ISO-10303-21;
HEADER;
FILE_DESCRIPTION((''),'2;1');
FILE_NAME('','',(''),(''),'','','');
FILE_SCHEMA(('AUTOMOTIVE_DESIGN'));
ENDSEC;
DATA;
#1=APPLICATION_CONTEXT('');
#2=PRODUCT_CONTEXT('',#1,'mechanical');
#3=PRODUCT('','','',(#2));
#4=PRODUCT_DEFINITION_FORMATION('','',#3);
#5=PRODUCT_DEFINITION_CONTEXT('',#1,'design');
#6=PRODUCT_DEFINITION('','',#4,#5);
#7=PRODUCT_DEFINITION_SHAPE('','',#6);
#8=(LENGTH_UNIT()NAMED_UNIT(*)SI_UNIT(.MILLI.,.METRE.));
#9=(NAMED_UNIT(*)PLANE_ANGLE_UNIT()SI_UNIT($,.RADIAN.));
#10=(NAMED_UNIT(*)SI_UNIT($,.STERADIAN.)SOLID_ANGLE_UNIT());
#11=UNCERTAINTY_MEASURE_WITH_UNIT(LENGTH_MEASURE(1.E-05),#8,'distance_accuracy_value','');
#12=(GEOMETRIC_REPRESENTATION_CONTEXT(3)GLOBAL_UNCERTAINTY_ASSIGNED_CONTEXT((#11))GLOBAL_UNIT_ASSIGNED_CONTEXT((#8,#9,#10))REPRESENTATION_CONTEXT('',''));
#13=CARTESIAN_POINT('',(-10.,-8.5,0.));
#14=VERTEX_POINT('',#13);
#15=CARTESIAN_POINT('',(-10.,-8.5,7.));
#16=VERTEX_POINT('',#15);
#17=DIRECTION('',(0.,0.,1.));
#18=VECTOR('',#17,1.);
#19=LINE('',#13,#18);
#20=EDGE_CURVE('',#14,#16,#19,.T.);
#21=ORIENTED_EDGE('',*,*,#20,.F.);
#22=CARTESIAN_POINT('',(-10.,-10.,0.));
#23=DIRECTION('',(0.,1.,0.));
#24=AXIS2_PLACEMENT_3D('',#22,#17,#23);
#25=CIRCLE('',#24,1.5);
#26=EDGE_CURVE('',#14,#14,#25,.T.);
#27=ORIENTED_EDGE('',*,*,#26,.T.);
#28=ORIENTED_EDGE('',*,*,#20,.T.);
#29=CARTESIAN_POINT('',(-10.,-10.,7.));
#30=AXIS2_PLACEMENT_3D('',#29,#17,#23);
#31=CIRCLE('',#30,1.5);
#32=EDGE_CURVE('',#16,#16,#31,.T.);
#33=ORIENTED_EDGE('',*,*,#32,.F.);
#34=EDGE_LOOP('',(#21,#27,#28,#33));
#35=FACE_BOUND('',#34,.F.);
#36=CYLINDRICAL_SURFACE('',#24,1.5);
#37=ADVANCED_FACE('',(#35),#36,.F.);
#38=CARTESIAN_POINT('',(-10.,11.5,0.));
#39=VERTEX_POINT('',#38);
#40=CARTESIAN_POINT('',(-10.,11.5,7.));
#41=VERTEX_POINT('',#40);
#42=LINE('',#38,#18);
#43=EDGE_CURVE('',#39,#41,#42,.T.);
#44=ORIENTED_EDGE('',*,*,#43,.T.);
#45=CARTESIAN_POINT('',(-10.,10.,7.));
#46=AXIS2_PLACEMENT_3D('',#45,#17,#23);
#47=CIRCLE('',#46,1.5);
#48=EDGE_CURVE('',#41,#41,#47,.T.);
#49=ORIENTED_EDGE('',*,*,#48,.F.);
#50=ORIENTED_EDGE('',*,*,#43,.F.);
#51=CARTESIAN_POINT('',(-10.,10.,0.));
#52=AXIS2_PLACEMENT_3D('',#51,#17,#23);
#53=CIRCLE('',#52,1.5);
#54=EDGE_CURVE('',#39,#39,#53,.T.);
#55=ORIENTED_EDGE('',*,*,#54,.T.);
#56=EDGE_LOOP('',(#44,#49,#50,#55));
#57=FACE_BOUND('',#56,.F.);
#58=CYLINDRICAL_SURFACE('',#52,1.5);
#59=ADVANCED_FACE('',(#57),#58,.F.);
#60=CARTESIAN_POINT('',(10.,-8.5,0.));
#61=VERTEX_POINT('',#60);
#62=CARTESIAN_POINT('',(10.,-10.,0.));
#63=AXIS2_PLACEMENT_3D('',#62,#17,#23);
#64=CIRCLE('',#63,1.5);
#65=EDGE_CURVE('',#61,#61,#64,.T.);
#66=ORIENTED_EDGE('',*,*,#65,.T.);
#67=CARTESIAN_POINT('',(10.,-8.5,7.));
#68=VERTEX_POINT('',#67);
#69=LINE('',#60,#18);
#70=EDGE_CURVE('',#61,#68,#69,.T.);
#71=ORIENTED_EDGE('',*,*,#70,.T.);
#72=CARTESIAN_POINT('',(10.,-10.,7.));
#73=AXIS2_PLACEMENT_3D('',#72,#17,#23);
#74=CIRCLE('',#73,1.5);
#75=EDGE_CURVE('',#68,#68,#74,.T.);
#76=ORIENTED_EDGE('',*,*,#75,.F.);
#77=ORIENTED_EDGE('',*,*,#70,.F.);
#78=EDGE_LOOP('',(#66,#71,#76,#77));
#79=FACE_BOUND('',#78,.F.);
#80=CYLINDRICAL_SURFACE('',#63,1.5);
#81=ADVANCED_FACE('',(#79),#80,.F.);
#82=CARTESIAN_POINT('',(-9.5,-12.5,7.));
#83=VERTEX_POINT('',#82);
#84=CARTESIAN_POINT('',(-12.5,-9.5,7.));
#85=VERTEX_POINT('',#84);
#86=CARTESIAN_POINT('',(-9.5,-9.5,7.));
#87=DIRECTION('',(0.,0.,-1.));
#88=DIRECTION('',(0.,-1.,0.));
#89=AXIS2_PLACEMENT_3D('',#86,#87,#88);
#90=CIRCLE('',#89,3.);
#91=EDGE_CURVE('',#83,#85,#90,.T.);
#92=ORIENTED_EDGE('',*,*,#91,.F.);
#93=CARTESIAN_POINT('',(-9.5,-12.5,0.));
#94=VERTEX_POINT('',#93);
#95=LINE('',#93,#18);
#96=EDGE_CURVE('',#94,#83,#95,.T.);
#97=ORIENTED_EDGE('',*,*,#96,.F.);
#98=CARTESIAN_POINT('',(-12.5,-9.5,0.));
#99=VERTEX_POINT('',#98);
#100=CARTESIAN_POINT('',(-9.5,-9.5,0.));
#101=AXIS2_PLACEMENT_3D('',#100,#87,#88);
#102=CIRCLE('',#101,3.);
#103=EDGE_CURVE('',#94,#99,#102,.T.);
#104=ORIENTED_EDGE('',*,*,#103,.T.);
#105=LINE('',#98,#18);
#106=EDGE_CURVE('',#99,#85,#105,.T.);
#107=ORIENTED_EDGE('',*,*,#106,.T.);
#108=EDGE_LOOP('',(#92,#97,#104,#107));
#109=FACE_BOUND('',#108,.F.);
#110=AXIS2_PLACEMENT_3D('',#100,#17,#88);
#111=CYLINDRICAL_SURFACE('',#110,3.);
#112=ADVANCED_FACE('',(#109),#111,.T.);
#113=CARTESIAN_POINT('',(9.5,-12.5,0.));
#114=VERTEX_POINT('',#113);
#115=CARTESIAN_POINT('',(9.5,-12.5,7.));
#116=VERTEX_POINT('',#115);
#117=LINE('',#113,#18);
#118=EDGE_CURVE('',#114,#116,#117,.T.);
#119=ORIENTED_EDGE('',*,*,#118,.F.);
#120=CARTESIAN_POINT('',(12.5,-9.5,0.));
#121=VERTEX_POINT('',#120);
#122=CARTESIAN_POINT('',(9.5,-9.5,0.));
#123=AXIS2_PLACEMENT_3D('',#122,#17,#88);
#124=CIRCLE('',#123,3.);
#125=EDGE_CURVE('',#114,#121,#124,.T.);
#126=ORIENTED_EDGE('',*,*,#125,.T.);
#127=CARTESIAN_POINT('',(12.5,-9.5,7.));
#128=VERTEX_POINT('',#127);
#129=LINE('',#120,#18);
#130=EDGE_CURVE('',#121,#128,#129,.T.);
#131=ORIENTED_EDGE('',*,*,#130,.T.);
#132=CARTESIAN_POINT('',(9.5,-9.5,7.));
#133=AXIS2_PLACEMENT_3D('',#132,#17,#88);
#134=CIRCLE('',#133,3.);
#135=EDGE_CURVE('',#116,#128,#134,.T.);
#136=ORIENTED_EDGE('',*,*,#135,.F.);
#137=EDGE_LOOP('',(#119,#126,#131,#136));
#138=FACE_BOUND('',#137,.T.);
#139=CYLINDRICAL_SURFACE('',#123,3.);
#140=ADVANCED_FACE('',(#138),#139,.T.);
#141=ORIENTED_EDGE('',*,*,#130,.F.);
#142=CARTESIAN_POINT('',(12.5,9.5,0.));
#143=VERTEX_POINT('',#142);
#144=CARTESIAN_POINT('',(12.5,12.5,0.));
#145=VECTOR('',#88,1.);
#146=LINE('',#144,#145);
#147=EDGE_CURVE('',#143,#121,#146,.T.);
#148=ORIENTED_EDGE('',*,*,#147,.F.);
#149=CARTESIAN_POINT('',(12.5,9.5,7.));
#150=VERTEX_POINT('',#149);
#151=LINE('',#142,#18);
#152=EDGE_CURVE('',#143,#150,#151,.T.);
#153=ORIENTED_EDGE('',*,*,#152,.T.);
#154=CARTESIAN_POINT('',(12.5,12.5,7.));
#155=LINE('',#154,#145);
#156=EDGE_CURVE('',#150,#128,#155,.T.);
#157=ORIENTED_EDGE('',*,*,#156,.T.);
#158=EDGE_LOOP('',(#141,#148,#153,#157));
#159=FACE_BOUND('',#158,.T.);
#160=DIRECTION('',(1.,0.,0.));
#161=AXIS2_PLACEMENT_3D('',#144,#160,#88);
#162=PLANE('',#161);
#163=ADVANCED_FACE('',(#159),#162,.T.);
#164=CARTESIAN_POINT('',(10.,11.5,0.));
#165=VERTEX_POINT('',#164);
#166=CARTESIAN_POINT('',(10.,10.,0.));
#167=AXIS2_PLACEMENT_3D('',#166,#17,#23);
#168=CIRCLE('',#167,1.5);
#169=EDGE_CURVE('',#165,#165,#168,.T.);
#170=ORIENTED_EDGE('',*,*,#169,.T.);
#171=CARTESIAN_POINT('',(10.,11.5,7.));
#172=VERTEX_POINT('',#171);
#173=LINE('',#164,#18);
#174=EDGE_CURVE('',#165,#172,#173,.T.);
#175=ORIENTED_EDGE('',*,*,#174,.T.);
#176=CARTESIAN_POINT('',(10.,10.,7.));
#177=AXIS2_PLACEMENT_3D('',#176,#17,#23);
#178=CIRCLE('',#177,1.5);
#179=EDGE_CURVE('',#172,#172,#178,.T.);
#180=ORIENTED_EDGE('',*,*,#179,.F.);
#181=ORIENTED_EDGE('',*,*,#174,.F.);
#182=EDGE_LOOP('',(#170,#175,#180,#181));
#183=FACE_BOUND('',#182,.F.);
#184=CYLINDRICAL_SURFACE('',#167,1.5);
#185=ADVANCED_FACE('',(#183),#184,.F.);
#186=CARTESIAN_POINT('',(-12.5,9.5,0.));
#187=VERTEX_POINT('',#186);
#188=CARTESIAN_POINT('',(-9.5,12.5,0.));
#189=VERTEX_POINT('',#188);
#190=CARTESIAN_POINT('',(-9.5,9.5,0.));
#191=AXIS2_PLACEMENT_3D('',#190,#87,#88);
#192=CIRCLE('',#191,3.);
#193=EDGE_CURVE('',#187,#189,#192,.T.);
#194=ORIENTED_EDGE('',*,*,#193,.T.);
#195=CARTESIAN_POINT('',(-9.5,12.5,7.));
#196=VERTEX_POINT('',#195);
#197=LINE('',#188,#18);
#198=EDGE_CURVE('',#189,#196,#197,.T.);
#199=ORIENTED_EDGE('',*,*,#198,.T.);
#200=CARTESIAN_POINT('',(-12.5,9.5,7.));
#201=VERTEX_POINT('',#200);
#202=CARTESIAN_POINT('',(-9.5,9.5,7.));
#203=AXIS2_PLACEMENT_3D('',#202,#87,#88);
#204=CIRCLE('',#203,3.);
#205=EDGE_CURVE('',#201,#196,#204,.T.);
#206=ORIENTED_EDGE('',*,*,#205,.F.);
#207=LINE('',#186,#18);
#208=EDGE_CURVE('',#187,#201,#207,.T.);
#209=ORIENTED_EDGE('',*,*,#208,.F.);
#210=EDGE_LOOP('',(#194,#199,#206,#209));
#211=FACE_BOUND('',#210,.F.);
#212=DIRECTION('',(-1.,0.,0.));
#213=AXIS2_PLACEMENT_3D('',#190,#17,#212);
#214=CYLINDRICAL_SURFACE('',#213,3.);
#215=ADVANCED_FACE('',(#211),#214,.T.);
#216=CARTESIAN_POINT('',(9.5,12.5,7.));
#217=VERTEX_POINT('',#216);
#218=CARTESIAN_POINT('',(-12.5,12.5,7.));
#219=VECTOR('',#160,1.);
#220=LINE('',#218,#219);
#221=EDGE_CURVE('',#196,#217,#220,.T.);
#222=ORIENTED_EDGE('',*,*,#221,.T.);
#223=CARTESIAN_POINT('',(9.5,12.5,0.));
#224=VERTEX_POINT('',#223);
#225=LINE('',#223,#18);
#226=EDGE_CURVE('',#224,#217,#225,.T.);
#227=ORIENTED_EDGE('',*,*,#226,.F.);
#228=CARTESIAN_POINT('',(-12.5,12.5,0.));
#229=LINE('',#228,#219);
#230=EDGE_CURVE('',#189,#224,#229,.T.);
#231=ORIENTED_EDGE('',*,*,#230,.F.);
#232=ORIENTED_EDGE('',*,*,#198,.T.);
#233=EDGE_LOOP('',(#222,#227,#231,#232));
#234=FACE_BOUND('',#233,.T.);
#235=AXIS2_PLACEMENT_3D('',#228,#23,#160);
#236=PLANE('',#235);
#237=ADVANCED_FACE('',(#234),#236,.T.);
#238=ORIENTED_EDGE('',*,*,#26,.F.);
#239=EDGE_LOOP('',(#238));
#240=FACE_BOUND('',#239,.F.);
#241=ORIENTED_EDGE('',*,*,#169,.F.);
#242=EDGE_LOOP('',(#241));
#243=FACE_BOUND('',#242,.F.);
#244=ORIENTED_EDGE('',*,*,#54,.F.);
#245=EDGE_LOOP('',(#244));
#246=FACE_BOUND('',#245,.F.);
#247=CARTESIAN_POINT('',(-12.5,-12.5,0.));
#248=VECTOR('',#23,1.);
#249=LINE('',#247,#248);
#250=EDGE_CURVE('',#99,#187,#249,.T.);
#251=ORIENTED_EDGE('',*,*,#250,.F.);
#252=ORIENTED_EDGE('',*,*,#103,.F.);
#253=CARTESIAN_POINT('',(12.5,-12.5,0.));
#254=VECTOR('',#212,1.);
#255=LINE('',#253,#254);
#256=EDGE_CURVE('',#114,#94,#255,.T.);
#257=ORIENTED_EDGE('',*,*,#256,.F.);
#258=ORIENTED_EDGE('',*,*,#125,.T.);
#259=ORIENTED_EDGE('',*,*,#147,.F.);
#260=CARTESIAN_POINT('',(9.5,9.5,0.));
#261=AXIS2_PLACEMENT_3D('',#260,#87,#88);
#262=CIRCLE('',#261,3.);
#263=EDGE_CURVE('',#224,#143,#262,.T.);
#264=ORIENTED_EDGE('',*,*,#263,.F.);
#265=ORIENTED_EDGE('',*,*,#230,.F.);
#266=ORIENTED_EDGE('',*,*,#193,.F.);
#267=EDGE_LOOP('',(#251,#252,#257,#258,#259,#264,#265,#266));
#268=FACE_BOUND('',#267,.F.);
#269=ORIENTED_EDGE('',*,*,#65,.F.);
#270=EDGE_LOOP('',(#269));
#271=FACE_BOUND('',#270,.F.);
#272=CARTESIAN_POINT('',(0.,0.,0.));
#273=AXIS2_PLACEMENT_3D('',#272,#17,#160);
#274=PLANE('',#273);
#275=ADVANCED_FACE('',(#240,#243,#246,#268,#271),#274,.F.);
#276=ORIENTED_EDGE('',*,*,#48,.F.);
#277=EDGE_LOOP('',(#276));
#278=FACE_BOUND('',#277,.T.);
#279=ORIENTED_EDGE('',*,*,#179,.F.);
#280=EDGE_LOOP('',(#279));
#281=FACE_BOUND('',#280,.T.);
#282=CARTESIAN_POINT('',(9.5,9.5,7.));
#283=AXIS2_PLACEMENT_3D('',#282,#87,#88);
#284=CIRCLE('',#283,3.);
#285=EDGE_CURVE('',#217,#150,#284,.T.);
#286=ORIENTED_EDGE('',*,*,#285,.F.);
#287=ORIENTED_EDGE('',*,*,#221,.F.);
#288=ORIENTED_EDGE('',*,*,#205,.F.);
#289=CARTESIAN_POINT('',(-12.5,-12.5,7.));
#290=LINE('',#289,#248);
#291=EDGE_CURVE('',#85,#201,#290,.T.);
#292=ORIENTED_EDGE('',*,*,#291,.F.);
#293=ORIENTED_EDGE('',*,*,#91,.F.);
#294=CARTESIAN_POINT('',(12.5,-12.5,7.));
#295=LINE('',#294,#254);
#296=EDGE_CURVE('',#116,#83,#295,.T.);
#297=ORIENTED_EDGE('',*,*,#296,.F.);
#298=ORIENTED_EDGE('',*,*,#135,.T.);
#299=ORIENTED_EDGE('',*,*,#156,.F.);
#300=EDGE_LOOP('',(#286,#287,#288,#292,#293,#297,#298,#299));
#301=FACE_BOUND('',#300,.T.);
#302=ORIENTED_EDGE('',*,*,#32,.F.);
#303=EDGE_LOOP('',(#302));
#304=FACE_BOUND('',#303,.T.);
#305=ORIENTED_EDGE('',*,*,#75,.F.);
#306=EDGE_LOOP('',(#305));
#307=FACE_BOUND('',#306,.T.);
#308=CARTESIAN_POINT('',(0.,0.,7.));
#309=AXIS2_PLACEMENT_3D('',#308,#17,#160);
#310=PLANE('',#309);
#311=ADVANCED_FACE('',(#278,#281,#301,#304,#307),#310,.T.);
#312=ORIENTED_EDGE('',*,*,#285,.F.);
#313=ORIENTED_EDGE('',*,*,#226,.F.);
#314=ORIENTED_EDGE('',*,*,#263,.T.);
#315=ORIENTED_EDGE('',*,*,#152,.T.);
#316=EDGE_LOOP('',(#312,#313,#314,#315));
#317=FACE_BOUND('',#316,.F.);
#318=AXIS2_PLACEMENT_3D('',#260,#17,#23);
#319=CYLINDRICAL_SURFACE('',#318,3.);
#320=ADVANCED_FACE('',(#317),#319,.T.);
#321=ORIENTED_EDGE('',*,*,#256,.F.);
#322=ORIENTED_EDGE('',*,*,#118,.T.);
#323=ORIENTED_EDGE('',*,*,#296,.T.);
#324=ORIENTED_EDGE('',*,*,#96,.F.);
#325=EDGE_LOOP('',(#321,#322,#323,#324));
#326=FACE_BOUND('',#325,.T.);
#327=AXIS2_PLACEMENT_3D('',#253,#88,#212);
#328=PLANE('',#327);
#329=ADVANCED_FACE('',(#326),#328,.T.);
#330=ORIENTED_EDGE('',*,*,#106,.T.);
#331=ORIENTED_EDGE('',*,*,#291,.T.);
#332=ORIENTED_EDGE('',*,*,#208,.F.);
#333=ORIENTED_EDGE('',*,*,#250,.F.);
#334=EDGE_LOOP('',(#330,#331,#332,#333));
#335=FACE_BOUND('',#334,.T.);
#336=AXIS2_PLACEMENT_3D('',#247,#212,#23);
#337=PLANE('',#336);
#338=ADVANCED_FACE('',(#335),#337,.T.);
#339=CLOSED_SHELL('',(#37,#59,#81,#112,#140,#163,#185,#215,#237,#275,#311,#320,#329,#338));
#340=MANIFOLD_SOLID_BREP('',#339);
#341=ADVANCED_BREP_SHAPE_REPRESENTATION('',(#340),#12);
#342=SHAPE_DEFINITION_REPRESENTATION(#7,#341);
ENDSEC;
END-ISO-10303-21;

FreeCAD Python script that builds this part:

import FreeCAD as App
import Part
import Sketcher


def edges_at(feature, points):
    """Names of the edges that pass closest to the given points."""
    edges = feature.Shape.Edges
    near = lambda p: min(range(len(edges)), key=lambda i: edges[i].distToShape(Part.Vertex(*p))[0])
    return sorted({f"Edge{near(p) + 1}" for p in points})

doc = App.newDocument("Part")
body = doc.addObject("PartDesign::Body", "Body")

# Sketch on XY plane
sketch1 = body.newObject("Sketcher::SketchObject", "Sketch")
sketch1.AttachmentSupport = (doc.getObject("XY_Plane"), [""])
sketch1.MapMode = "FlatFace"
sketch1.addGeometry([
    Part.LineSegment(App.Vector(-12.5, -12.5, 0), App.Vector(12.5, -12.5, 0)),
    Part.LineSegment(App.Vector(12.5, -12.5, 0), App.Vector(12.5, 12.5, 0)),
    Part.LineSegment(App.Vector(12.5, 12.5, 0), App.Vector(-12.5, 12.5, 0)),
    Part.LineSegment(App.Vector(-12.5, 12.5, 0), App.Vector(-12.5, -12.5, 0)),
], False)
sketch1.addConstraint([
    Sketcher.Constraint("Coincident", 0, 2, 1, 1),
    Sketcher.Constraint("Coincident", 1, 2, 2, 1),
    Sketcher.Constraint("Coincident", 2, 2, 3, 1),
    Sketcher.Constraint("Coincident", 3, 2, 0, 1),
    Sketcher.Constraint("Horizontal", 0),
    Sketcher.Constraint("Vertical", 1),
    Sketcher.Constraint("Horizontal", 2),
    Sketcher.Constraint("Vertical", 3),
    Sketcher.Constraint("Symmetric", 0, 2, 2, 2, -1, 1),
    Sketcher.Constraint("Equal", 2, 1),
    Sketcher.Constraint("DistanceX", 0, 1, 0, 2, 25.0),
])
pad1 = body.newObject("PartDesign::Pad", "Pad")
pad1.Profile = sketch1
pad1.Length = 7
doc.recompute()

fillet = body.newObject("PartDesign::Fillet", "Fillet")
fillet.Base = (pad1, edges_at(pad1, [
    (12.5, -12.5, 3.5),
    (-12.5, -12.5, 3.5),
    (12.5, 12.5, 3.5),
    (-12.5, 12.5, 3.5),
]))
fillet.Radius = 3

# Sketch on XY plane
sketch2 = body.newObject("Sketcher::SketchObject", "Sketch001")
sketch2.AttachmentSupport = (doc.getObject("XY_Plane"), [""])
sketch2.MapMode = "FlatFace"
sketch2.addGeometry([
    Part.Circle(App.Vector(10, -10, 0), App.Vector(0, 0, 1), 1.5),
    Part.Circle(App.Vector(10, 10, 0), App.Vector(0, 0, 1), 1.5),
    Part.Circle(App.Vector(-10, 10, 0), App.Vector(0, 0, 1), 1.5),
    Part.Circle(App.Vector(-10, -10, 0), App.Vector(0, 0, 1), 1.5),
], False)
sketch2.addConstraint([
    Sketcher.Constraint("Equal", 0, 1),
    Sketcher.Constraint("Equal", 1, 2),
    Sketcher.Constraint("Equal", 2, 3),
    Sketcher.Constraint("Symmetric", 0, 3, 2, 3, -1, 1),
    Sketcher.Constraint("Symmetric", 1, 3, 3, 3, -1, 1),
    Sketcher.Constraint("Symmetric", 1, 3, 2, 3, -2),
    Sketcher.Constraint("Diameter", 0, 3.0),
    Sketcher.Constraint("DistanceX", -1, 1, 0, 3, 10.0),
    Sketcher.Constraint("DistanceY", 0, 3, -1, 1, 10.0),
])
doc.recompute()
hole = body.newObject("PartDesign::Hole", "Hole")
hole.Profile = sketch2
hole.ThreadType = "None"
hole.Diameter = 3
hole.DepthType = "ThroughAll"
hole.Reversed = True

doc.recompute()
